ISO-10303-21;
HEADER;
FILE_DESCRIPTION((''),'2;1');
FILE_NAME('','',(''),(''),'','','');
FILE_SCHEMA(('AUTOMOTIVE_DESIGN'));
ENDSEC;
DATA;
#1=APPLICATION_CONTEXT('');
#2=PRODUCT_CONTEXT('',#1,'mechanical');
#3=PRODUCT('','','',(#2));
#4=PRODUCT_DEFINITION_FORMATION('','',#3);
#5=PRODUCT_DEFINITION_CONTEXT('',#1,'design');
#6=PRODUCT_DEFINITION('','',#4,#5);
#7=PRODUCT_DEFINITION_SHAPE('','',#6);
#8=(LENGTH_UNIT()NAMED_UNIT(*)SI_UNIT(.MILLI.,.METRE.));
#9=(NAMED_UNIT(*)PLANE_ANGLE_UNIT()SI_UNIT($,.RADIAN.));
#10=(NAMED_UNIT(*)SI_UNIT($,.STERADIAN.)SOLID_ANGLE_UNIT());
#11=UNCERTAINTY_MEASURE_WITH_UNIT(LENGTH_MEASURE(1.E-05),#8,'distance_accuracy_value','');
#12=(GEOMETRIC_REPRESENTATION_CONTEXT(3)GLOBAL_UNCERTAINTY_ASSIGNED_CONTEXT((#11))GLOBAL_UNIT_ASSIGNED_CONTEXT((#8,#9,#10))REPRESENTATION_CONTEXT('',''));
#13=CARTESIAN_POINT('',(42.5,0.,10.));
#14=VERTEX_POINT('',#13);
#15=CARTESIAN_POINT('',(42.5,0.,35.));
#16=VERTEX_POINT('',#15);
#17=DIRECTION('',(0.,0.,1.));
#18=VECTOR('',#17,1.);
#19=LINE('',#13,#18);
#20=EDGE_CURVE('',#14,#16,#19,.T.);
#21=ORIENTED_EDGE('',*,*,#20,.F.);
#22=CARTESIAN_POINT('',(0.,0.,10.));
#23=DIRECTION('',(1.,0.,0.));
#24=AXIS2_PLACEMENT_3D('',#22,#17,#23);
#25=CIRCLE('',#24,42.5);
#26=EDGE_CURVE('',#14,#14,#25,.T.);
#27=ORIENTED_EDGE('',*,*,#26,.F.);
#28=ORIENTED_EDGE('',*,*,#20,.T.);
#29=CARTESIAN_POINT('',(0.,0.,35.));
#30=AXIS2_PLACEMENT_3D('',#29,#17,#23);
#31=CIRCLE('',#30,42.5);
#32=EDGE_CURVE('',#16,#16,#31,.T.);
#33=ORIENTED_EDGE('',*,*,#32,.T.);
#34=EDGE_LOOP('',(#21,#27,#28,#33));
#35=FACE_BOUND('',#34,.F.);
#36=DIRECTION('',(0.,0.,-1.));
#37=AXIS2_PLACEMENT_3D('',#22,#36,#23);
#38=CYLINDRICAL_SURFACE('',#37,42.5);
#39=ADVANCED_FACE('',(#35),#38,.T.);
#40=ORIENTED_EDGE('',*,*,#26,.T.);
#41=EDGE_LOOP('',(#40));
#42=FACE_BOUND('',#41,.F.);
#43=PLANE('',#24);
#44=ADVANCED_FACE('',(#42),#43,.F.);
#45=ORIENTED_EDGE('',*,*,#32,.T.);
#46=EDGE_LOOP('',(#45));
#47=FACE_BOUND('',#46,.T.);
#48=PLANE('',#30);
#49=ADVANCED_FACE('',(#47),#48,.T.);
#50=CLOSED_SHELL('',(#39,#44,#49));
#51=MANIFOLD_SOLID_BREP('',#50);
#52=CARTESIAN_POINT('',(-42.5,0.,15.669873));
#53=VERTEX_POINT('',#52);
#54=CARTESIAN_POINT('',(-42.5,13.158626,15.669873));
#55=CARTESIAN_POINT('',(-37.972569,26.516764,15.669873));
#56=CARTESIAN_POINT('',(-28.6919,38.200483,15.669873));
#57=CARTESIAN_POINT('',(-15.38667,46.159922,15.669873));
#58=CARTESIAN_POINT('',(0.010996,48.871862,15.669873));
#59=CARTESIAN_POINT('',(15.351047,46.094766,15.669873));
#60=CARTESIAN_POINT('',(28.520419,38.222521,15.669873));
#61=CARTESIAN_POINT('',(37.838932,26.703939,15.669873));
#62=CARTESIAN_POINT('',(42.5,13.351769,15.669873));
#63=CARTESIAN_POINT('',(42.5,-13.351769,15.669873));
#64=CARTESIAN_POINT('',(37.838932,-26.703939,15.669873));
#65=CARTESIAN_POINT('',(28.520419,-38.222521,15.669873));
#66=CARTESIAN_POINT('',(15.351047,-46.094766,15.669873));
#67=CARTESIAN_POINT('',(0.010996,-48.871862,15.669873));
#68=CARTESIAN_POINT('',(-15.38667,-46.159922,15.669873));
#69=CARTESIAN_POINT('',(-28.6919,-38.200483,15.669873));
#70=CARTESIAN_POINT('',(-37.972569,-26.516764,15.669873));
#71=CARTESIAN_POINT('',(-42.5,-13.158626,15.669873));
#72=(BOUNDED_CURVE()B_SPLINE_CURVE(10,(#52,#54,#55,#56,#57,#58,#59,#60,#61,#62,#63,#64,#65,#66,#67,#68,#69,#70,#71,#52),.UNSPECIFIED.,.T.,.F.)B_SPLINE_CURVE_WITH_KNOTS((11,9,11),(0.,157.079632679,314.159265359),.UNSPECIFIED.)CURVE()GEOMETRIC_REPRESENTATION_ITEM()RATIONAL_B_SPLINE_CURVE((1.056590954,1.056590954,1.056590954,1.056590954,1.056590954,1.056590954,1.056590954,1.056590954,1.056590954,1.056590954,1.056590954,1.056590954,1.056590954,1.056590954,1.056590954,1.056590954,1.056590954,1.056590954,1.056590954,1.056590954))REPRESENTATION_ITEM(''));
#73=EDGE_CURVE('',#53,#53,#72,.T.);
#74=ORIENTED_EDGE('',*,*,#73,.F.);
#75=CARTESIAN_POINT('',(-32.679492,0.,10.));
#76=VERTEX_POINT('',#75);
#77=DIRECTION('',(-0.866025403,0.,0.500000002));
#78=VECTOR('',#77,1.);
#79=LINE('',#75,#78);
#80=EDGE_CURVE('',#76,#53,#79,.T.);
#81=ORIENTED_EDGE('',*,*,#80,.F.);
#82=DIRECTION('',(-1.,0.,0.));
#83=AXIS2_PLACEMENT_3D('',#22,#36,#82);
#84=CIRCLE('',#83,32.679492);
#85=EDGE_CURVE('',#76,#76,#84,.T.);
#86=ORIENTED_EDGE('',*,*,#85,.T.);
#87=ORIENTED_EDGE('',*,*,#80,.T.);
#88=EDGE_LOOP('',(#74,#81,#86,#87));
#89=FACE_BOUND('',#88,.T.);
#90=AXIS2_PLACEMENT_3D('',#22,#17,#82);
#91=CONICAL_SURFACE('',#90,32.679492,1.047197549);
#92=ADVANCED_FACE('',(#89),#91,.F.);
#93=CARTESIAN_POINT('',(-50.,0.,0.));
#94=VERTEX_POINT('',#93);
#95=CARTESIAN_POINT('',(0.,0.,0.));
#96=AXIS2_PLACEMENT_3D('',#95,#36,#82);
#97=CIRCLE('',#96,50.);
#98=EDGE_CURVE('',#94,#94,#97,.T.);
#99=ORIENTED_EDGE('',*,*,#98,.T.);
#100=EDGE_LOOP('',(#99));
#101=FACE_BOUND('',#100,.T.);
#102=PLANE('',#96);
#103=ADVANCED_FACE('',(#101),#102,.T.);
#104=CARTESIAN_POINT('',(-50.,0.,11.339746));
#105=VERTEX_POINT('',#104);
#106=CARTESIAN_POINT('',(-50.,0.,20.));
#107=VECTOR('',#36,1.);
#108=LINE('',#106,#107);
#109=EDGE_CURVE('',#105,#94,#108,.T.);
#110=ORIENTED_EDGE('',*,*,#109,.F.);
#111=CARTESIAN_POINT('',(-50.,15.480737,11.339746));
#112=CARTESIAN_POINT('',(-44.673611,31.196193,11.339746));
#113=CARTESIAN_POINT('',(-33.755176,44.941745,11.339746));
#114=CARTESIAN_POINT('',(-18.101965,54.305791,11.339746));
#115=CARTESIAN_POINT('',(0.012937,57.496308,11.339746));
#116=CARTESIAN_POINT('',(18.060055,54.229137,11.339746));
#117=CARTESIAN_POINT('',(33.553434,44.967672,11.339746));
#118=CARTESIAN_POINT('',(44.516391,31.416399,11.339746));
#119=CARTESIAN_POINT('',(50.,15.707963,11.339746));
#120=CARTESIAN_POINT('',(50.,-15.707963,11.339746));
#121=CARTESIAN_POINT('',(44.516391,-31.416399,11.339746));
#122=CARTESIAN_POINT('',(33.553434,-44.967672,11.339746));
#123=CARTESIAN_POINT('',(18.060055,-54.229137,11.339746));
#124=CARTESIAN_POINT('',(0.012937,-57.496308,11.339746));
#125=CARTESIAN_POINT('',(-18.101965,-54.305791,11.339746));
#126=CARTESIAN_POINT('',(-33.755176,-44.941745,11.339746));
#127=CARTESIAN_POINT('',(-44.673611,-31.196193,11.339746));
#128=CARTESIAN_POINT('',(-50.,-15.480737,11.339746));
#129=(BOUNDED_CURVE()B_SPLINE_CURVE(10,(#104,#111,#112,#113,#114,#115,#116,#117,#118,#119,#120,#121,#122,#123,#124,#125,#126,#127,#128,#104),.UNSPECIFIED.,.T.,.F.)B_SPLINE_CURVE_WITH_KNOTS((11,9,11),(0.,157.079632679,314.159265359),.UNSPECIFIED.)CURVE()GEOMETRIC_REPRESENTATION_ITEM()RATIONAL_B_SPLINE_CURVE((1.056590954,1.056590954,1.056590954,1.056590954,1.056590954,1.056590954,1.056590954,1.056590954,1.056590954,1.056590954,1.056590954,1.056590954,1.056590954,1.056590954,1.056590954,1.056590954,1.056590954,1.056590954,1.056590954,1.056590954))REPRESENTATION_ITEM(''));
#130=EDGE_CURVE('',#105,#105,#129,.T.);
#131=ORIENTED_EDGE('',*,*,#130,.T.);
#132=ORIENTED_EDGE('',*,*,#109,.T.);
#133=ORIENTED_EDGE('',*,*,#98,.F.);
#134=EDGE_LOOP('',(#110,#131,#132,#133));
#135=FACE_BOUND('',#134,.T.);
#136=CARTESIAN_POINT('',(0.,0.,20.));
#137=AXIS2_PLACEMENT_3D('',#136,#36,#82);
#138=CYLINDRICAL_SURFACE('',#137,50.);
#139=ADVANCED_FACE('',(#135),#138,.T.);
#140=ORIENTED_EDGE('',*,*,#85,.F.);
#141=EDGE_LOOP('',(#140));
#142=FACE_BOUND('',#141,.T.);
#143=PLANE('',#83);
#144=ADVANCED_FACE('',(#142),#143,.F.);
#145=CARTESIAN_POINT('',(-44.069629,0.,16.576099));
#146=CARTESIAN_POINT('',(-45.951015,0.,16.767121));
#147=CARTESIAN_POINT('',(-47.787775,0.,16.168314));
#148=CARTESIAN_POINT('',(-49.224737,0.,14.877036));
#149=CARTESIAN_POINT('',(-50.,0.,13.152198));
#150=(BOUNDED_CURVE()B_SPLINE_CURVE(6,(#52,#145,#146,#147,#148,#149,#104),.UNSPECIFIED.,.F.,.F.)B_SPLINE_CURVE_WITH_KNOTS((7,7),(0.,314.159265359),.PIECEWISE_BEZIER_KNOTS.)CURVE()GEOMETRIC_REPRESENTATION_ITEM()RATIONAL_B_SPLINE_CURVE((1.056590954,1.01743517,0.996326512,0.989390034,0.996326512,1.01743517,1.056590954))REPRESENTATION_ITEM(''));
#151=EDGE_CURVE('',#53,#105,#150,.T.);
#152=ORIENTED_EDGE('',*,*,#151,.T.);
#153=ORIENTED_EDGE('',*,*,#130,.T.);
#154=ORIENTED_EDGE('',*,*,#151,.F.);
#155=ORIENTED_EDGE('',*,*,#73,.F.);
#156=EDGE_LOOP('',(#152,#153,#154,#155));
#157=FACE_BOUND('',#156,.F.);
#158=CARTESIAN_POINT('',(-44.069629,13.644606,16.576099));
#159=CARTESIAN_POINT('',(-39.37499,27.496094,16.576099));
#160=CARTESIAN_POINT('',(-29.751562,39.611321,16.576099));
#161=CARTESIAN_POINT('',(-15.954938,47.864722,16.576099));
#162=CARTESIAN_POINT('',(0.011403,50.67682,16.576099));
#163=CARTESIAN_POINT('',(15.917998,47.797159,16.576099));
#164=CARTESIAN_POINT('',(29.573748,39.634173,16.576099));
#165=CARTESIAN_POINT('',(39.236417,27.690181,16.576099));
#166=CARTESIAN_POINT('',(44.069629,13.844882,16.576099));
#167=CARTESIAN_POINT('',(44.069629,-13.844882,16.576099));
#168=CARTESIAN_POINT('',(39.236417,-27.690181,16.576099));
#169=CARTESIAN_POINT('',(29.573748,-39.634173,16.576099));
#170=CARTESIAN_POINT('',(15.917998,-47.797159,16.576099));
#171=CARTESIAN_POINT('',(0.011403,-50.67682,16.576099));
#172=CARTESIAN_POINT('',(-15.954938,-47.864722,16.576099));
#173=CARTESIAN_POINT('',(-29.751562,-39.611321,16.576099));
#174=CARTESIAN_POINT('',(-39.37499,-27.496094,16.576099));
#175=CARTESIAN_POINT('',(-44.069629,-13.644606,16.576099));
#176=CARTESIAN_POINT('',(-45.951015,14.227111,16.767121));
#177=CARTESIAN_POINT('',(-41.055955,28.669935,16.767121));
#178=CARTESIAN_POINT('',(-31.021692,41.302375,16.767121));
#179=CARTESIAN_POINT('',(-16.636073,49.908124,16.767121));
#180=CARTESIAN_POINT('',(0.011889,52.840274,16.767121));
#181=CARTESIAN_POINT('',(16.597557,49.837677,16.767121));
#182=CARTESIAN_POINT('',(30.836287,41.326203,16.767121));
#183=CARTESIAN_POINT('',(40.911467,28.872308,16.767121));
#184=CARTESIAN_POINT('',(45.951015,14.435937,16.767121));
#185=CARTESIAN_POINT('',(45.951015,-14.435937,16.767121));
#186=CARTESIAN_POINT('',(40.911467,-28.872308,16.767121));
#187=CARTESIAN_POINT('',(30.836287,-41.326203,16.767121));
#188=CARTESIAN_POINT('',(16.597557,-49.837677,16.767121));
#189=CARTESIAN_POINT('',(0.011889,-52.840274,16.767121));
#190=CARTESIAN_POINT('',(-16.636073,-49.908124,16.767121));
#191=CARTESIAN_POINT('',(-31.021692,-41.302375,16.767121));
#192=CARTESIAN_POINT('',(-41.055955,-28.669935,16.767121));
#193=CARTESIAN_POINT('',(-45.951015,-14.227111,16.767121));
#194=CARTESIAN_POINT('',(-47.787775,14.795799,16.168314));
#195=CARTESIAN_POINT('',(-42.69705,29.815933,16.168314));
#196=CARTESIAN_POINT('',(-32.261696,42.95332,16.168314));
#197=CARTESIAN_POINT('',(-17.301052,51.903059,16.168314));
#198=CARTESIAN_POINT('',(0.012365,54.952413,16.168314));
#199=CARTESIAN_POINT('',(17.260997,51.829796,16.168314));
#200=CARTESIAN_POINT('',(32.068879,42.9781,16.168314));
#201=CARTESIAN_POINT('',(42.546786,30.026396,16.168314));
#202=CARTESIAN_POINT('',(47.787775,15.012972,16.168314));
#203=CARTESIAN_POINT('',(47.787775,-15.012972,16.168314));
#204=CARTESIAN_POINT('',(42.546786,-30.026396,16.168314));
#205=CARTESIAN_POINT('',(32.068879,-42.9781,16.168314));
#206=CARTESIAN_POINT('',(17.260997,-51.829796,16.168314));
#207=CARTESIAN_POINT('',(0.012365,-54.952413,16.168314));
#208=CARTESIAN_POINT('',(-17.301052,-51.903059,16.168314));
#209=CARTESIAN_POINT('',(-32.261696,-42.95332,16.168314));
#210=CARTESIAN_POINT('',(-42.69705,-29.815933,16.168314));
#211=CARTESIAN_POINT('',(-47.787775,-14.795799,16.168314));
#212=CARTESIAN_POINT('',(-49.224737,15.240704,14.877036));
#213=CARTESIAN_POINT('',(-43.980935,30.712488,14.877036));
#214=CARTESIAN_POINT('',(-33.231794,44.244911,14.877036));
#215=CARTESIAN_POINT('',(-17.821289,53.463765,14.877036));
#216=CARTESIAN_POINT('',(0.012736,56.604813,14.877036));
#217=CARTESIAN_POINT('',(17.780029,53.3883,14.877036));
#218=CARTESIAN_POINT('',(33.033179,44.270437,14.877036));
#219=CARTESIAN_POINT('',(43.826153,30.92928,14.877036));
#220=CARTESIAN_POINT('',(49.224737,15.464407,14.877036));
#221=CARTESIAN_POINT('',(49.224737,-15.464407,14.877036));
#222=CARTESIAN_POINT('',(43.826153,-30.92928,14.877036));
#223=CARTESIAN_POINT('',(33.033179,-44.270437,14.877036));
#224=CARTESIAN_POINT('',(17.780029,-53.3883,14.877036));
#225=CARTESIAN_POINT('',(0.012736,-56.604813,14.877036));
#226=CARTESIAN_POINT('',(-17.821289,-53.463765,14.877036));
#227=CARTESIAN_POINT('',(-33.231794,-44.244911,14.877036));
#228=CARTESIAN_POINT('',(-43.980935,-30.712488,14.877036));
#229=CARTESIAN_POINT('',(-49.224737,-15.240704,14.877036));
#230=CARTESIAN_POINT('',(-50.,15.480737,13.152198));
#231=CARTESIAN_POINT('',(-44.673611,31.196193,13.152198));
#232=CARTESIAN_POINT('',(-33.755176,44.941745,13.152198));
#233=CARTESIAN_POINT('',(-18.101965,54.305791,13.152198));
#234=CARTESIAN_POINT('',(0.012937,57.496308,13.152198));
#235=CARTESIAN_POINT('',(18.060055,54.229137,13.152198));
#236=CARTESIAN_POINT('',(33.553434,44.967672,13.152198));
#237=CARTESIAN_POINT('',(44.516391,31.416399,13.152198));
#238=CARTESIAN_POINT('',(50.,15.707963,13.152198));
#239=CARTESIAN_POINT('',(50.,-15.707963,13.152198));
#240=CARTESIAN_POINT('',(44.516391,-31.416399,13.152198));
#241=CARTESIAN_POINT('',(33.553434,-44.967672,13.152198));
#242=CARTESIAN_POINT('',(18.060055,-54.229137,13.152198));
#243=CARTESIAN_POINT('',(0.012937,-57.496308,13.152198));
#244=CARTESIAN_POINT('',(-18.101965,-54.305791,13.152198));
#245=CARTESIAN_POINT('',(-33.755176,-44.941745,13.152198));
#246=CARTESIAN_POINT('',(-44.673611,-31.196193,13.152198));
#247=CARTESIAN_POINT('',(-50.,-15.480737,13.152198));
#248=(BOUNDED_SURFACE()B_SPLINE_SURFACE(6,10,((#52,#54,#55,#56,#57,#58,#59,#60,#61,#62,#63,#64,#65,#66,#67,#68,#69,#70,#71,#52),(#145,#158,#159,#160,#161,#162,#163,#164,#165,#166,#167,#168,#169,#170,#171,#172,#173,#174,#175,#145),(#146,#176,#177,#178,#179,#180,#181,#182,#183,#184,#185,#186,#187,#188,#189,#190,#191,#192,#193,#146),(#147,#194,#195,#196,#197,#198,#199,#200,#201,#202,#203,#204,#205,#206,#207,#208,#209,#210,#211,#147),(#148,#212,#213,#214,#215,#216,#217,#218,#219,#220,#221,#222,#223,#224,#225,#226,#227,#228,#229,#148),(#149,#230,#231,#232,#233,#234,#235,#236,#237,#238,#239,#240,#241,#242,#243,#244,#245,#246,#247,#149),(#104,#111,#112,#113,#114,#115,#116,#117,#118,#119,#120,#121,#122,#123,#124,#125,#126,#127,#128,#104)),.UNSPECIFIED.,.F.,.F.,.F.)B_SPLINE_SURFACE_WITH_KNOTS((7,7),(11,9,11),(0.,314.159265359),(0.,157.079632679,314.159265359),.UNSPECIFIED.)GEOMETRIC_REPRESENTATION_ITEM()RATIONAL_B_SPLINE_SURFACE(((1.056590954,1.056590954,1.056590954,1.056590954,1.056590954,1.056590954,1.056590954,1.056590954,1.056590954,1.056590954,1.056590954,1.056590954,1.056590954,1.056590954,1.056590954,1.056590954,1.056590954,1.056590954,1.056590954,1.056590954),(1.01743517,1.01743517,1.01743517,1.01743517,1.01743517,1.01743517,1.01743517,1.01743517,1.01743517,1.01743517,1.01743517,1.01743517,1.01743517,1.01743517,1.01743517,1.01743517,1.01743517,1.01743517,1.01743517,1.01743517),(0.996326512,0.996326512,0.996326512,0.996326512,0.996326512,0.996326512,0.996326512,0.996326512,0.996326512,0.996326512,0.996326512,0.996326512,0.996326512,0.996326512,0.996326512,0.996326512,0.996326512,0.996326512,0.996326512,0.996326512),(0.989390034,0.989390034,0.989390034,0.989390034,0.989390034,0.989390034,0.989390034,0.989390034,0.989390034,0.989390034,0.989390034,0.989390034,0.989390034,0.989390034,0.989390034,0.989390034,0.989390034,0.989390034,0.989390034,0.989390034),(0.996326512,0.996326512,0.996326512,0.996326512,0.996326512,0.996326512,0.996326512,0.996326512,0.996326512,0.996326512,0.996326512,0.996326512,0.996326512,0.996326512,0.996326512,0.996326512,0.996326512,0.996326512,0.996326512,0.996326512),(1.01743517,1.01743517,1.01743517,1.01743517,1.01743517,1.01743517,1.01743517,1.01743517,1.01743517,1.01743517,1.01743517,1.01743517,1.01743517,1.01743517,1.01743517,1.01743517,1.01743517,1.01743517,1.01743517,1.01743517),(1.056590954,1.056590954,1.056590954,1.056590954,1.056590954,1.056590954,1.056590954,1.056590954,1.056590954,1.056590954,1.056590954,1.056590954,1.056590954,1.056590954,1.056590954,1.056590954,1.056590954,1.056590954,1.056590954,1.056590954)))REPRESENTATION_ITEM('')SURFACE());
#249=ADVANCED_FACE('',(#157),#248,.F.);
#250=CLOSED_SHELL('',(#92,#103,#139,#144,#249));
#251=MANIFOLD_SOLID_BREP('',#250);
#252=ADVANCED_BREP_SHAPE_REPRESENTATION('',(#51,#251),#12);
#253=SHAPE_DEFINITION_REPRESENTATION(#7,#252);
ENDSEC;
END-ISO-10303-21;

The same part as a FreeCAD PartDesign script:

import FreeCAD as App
import Part
import Sketcher

V = App.Vector
Q = App.Units.Quantity


def edges_at(feature, points):
    """Names of the edges that pass closest to the given points."""
    edges = feature.Shape.Edges
    near = lambda p: min(range(len(edges)), key=lambda i: edges[i].distToShape(Part.Vertex(*p))[0])
    return sorted({f"Edge{near(p) + 1}" for p in points})


def add_polygon(sketch, points):
    """Adds a closed chain of lines whose ends are joined by coincident constraints."""
    first, n = sketch.GeometryCount, len(points)
    for a, b in zip(points, points[1:] + points[:1]):
        sketch.addGeometry(Part.LineSegment(App.Vector(*a, 0), App.Vector(*b, 0)), False)
    for i in range(n):
        sketch.addConstraint(Sketcher.Constraint("Coincident", first + i, 2, first + (i + 1) % n, 1))

doc = App.newDocument("Part")
body = doc.addObject("PartDesign::Body", "Body")

# Sketch on XZ plane
sketch1 = body.newObject("Sketcher::SketchObject", "Sketch")
sketch1.AttachmentSupport = (doc.getObject("XZ_Plane"), [""])
sketch1.MapMode = "FlatFace"
add_polygon(sketch1, [(-50, 0), (0, 0), (0, 10), (-33, 10), (-50, 20)])  # lines 0-4
sketch1.addConstraint(Sketcher.Constraint("Horizontal", 0))
sketch1.addConstraint(Sketcher.Constraint("Vertical", 1))
sketch1.addConstraint(Sketcher.Constraint("Horizontal", 2))
sketch1.addConstraint(Sketcher.Constraint("Vertical", 4))
sketch1.addConstraint(Sketcher.Constraint("Coincident", 0, 2, -1, 1))
sketch1.addConstraint(Sketcher.Constraint("DistanceX", 0, 1, 0, 2, Q("50 mm")))
sketch1.addConstraint(Sketcher.Constraint("DistanceY", 1, 1, 1, 2, Q("10 mm")))
sketch1.addConstraint(Sketcher.Constraint("DistanceY", 4, 2, 4, 1, Q("20 mm")))
sketch1.addConstraint(Sketcher.Constraint("Angle", 3, Q("150 deg")))
revolution = body.newObject("PartDesign::Revolution", "Revolution")
revolution.Profile = sketch1
revolution.ReferenceAxis = (sketch1, ["V_Axis"])
revolution.Angle = 360
doc.recompute()

fillet = body.newObject("PartDesign::Fillet", "Fillet")
fillet.Base = (revolution, edges_at(revolution, [(50, 0, 20)]))
fillet.Radius = 5
body2 = doc.addObject("PartDesign::Body", "Body001")

# Sketch on XY plane
sketch2 = body2.newObject("Sketcher::SketchObject", "Sketch001")
sketch2.AttachmentSupport = (doc.getObject("XY_Plane001"), [""])
sketch2.MapMode = "FlatFace"
sketch2.AttachmentOffset = App.Placement(V(0, 0, 10), App.Rotation())
sketch2.addGeometry(Part.Circle(V(0, 0, 0), V(0, 0, 1), 42), False)
sketch2.addConstraint(Sketcher.Constraint("Coincident", 0, 3, -1, 1))
sketch2.addConstraint(Sketcher.Constraint("Diameter", 0, Q("85 mm")))
pad1 = body2.newObject("PartDesign::Pad", "Pad")
pad1.Profile = sketch2
pad1.Length = 25

doc.recompute()
